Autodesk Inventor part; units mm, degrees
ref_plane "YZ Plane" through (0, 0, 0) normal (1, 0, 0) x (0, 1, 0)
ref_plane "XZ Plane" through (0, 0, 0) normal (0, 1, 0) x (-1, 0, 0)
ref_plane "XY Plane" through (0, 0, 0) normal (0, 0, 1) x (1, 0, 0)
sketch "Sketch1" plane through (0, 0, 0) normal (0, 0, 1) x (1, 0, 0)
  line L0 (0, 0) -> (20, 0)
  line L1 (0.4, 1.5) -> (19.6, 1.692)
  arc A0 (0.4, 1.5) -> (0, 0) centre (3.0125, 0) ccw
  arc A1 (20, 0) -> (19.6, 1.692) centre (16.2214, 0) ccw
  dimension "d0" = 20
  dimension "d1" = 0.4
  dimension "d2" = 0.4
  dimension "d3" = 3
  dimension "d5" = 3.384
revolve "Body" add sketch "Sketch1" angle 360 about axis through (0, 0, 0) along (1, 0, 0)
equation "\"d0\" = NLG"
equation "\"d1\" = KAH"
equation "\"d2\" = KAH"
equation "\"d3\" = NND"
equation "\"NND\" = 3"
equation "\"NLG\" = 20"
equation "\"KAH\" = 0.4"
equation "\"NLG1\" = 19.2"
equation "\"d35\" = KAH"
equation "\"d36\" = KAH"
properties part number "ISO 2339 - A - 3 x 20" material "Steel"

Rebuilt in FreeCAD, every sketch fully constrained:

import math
import FreeCAD as App
import Part
import Sketcher
from FreeCAD import Vector

doc = App.newDocument("Part")
body = doc.addObject("PartDesign::Body", "Body")

# Sketch on XY plane
sketch1 = body.newObject("Sketcher::SketchObject", "Sketch")
sketch1.AttachmentSupport = (doc.getObject("XY_Plane"), [""])
sketch1.MapMode = "FlatFace"
sketch1.addGeometry(Part.ArcOfCircle(Part.Circle(Vector(3, 0, 0), Vector(0, 0, 1), 3), math.radians(150), math.radians(180)), False)
sketch1.addGeometry(Part.LineSegment(Vector(0, 0, 0), Vector(20, 0, 0)), False)
sketch1.addGeometry(Part.ArcOfCircle(Part.Circle(Vector(16.2, 0, 0), Vector(0, 0, 1), 3.8), math.radians(0), math.radians(27)), False)
sketch1.addGeometry(Part.LineSegment(Vector(19.6, 1.7, 0), Vector(0.4, 1.5, 0)), False)
sketch1.addConstraint(Sketcher.Constraint("Coincident", 0, 2, 1, 1))
sketch1.addConstraint(Sketcher.Constraint("Coincident", 1, 2, 2, 1))
sketch1.addConstraint(Sketcher.Constraint("Coincident", 2, 2, 3, 1))
sketch1.addConstraint(Sketcher.Constraint("Coincident", 3, 2, 0, 1))
sketch1.addConstraint(Sketcher.Constraint("Horizontal", 1))
sketch1.addConstraint(Sketcher.Constraint("Coincident", 0, 2, -1, 1))
sketch1.addConstraint(Sketcher.Constraint("PointOnObject", 0, 3, -1))
sketch1.addConstraint(Sketcher.Constraint("PointOnObject", 2, 3, -1))
sketch1.addConstraint(Sketcher.Constraint("DistanceX", 1, 1, 1, 2, 20.0))
sketch1.addConstraint(Sketcher.Constraint("DistanceX", -1, 1, 3, 2, 0.4))
sketch1.addConstraint(Sketcher.Constraint("DistanceX", 2, 2, 1, 2, 0.4))
sketch1.addConstraint(Sketcher.Constraint("DistanceY", -1, 1, 3, 2, 1.5))
sketch1.addConstraint(Sketcher.Constraint("Radius", 2, 3.7786))
revolution = body.newObject("PartDesign::Revolution", "Revolution")
revolution.Profile = sketch1
revolution.ReferenceAxis = (sketch1, ["H_Axis"])
revolution.Angle = 360

doc.recompute()
